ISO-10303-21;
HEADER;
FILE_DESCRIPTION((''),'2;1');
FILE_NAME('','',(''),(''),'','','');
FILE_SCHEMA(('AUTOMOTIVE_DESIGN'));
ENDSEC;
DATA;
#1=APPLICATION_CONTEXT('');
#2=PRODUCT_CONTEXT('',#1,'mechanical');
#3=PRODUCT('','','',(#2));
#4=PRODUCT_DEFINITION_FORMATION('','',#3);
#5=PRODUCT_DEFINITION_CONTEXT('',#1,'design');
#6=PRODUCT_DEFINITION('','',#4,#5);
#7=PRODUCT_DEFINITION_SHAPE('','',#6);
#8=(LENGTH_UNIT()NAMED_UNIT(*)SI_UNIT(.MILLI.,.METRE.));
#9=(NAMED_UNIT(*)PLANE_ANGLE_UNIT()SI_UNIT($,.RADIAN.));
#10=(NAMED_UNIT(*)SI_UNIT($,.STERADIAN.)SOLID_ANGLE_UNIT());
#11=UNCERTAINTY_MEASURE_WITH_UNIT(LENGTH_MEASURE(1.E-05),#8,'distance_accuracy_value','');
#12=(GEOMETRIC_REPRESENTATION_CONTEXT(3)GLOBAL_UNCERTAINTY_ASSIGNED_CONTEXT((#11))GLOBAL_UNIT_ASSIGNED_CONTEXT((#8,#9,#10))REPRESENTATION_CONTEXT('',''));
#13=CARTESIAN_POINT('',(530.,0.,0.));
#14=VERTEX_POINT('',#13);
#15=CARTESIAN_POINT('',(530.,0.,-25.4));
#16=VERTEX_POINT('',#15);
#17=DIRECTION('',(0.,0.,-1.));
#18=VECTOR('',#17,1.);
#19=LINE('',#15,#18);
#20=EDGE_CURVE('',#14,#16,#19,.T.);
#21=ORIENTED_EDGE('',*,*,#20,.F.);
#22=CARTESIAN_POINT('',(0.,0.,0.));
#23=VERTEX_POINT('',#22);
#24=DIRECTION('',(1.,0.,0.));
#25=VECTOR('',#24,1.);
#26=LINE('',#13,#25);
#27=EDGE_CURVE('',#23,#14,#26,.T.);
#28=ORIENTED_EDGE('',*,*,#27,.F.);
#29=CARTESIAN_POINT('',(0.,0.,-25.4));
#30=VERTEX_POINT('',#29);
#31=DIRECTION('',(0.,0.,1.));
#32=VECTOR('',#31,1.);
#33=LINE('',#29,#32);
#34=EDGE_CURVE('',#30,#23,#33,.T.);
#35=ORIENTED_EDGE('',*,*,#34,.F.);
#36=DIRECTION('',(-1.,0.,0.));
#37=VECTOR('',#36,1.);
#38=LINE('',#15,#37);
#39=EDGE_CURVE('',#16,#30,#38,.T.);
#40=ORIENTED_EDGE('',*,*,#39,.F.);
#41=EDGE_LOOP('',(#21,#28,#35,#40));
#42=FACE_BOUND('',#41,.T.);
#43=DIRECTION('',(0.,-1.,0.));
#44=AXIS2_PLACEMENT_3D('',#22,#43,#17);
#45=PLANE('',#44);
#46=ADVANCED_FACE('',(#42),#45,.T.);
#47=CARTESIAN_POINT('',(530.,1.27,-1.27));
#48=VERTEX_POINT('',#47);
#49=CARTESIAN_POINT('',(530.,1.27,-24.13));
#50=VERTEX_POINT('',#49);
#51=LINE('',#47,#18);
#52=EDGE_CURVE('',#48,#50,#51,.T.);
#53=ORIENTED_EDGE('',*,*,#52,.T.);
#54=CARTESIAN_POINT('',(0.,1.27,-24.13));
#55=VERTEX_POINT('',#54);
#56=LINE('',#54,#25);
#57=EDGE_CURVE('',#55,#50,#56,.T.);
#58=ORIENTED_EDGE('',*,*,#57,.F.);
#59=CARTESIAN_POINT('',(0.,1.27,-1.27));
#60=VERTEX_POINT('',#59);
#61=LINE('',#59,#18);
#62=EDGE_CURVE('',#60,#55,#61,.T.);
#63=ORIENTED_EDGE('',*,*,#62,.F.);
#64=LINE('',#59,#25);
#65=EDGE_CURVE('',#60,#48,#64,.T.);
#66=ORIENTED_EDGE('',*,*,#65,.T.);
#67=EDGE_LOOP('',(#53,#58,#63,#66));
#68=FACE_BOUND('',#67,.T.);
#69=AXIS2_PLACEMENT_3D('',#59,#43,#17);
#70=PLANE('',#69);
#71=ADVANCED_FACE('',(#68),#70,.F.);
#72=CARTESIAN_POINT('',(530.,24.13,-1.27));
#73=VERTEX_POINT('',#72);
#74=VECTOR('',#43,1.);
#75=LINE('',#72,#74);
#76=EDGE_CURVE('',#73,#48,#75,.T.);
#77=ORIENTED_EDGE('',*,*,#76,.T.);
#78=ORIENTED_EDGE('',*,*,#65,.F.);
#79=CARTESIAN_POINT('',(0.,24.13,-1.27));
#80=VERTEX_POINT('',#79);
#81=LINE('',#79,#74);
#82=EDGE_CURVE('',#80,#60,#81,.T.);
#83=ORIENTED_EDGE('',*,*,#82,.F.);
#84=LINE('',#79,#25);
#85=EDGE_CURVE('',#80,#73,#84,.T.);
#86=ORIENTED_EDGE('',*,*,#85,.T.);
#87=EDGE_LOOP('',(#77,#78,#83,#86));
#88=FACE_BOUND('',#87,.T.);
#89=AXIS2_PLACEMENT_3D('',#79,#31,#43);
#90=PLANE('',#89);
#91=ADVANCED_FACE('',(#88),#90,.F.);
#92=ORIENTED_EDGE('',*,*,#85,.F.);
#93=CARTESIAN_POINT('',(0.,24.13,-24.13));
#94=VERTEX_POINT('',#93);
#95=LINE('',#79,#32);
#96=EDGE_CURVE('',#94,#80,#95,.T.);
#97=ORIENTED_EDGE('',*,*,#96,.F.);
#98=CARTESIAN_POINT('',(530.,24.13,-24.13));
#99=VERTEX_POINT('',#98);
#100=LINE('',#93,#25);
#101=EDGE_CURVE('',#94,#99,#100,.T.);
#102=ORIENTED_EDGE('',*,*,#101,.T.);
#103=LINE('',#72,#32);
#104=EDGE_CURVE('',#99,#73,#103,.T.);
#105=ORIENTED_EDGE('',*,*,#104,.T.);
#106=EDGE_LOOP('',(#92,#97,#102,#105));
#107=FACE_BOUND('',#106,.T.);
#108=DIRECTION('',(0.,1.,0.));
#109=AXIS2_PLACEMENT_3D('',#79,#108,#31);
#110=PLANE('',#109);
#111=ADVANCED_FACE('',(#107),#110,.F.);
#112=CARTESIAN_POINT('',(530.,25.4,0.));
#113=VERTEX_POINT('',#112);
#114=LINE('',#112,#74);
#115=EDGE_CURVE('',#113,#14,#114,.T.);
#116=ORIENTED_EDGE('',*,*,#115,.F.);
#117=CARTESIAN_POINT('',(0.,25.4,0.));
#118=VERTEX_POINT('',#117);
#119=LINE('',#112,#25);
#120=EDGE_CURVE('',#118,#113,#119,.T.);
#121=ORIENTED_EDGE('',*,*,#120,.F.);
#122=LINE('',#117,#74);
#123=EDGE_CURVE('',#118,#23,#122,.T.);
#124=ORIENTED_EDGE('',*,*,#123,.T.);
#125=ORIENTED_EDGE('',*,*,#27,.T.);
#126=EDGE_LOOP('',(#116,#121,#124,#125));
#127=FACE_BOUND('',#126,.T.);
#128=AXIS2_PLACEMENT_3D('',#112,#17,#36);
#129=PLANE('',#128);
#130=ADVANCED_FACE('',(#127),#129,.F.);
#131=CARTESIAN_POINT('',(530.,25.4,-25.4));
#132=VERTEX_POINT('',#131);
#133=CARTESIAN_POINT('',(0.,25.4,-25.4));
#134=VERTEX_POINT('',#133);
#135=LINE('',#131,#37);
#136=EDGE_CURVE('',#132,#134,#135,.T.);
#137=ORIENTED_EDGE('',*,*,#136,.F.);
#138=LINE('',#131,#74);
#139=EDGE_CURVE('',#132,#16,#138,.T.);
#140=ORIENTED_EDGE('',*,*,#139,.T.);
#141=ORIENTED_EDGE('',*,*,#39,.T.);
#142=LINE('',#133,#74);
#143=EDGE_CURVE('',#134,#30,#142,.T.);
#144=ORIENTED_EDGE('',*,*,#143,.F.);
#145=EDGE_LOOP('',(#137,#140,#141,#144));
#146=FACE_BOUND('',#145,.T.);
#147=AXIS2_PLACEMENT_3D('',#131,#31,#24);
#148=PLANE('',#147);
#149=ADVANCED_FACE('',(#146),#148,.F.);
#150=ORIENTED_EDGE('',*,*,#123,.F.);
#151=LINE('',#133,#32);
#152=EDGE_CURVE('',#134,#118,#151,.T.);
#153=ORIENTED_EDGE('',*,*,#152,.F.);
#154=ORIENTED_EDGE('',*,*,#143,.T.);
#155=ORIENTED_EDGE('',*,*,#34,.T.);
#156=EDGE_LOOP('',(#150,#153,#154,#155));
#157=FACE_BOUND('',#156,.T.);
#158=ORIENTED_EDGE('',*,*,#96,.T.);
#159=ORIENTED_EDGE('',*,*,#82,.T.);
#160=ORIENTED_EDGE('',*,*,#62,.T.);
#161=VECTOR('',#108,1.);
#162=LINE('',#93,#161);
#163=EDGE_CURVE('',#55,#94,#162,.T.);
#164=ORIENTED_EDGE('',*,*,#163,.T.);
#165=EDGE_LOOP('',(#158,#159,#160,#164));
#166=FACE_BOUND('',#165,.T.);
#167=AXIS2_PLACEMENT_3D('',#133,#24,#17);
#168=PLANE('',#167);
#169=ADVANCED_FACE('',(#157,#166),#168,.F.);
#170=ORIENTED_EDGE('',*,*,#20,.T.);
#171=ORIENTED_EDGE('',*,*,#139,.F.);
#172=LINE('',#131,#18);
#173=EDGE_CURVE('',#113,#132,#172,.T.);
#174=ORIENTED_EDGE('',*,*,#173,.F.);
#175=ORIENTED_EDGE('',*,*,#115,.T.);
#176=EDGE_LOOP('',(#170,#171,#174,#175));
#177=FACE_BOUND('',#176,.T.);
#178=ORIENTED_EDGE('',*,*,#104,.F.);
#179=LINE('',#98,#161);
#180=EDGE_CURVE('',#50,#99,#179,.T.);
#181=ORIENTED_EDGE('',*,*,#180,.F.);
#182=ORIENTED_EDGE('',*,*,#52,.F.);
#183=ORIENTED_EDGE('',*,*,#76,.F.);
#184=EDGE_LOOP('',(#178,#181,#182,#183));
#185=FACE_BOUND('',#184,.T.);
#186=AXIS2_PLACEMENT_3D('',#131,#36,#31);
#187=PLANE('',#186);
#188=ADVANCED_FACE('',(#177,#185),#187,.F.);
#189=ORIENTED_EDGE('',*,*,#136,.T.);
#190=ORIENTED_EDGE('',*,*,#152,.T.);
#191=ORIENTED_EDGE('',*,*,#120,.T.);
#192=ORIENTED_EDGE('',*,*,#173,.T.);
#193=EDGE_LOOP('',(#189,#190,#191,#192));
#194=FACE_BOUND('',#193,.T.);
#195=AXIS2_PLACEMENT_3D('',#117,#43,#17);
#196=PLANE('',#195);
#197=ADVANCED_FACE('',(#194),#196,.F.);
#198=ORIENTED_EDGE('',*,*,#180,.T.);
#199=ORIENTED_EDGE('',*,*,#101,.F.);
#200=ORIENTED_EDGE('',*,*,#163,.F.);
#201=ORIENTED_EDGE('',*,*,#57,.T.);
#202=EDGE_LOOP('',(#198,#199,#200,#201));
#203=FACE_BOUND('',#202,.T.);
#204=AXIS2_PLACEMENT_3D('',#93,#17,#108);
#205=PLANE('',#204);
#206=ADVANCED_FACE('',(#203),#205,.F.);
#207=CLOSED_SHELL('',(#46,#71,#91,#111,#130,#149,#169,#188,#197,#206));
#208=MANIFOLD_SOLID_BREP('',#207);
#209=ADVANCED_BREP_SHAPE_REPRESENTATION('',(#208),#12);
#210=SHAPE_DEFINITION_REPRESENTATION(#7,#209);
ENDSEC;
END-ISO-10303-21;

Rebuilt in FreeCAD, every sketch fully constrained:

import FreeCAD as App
import Part
import Sketcher
from FreeCAD import Vector
Q = App.Units.Quantity

doc = App.newDocument("Part")
body = doc.addObject("PartDesign::Body", "Body")

# Sketch on XZ plane
sketch1 = doc.addObject("Sketcher::SketchObject", "Sketch")
body.addObject(sketch1)
sketch1.AttachmentSupport = (doc.XZ_Plane, [""])
sketch1.MapMode = "FlatFace"
sketch1.addGeometry([
    Part.LineSegment(Vector(0, -25, 0), Vector(0, 0, 0)),
    Part.LineSegment(Vector(0, 0, 0), Vector(530, 0, 0)),
    Part.LineSegment(Vector(530, 0, 0), Vector(530, -25, 0)),
    Part.LineSegment(Vector(530, -25, 0), Vector(0, -25, 0)),
], False)
sketch1.addConstraint([
    Sketcher.Constraint("Coincident", 0, 2, 1, 1),
    Sketcher.Constraint("Coincident", 1, 2, 2, 1),
    Sketcher.Constraint("Coincident", 2, 2, 3, 1),
    Sketcher.Constraint("Coincident", 3, 2, 0, 1),
    Sketcher.Constraint("Vertical", 0),
    Sketcher.Constraint("Horizontal", 1),
    Sketcher.Constraint("Vertical", 2),
    Sketcher.Constraint("Horizontal", 3),
    Sketcher.Constraint("Coincident", 0, 2, -1, 1),
    Sketcher.Constraint("DistanceY", 0, 1, 0, 2, Q("1 in")),
    Sketcher.Constraint("DistanceX", 1, 1, 1, 2, Q("530 mm")),
])
pad1 = doc.addObject("PartDesign::Pad", "Pad")
body.addObject(pad1)
pad1.Profile = sketch1
pad1.Length = Q("1 in")
pad1.Reversed = True

# Sketch on YZ plane
sketch2 = doc.addObject("Sketcher::SketchObject", "Sketch001")
body.addObject(sketch2)
sketch2.AttachmentSupport = (doc.YZ_Plane, [""])
sketch2.MapMode = "FlatFace"
sketch2.AttachmentOffset = App.Placement(Vector(0, 0, 530), App.Rotation())
sketch2.addGeometry([
    Part.LineSegment(Vector(24, -1, 0), Vector(1, -1, 0)),
    Part.LineSegment(Vector(1, -1, 0), Vector(1, -24, 0)),
    Part.LineSegment(Vector(1, -24, 0), Vector(24, -24, 0)),
    Part.LineSegment(Vector(24, -24, 0), Vector(24, -1, 0)),
], False)
sketch2.addConstraint([
    Sketcher.Constraint("Coincident", 0, 2, 1, 1),
    Sketcher.Constraint("Coincident", 1, 2, 2, 1),
    Sketcher.Constraint("Coincident", 2, 2, 3, 1),
    Sketcher.Constraint("Coincident", 3, 2, 0, 1),
    Sketcher.Constraint("Horizontal", 0),
    Sketcher.Constraint("Vertical", 1),
    Sketcher.Constraint("Horizontal", 2),
    Sketcher.Constraint("Vertical", 3),
    Sketcher.Constraint("Equal", 2, 1),
    Sketcher.Constraint("DistanceX", 0, 2, 0, 1, Q("0.9 in")),
    Sketcher.Constraint("DistanceX", -1, 1, 0, 2, Q("0.05 in")),
    Sketcher.Constraint("DistanceY", 0, 2, -1, 1, Q("0.05 in")),
])
pocket1 = doc.addObject("PartDesign::Pocket", "Pocket")
body.addObject(pocket1)
pocket1.Profile = sketch2
pocket1.Type = "ThroughAll"

doc.recompute()
